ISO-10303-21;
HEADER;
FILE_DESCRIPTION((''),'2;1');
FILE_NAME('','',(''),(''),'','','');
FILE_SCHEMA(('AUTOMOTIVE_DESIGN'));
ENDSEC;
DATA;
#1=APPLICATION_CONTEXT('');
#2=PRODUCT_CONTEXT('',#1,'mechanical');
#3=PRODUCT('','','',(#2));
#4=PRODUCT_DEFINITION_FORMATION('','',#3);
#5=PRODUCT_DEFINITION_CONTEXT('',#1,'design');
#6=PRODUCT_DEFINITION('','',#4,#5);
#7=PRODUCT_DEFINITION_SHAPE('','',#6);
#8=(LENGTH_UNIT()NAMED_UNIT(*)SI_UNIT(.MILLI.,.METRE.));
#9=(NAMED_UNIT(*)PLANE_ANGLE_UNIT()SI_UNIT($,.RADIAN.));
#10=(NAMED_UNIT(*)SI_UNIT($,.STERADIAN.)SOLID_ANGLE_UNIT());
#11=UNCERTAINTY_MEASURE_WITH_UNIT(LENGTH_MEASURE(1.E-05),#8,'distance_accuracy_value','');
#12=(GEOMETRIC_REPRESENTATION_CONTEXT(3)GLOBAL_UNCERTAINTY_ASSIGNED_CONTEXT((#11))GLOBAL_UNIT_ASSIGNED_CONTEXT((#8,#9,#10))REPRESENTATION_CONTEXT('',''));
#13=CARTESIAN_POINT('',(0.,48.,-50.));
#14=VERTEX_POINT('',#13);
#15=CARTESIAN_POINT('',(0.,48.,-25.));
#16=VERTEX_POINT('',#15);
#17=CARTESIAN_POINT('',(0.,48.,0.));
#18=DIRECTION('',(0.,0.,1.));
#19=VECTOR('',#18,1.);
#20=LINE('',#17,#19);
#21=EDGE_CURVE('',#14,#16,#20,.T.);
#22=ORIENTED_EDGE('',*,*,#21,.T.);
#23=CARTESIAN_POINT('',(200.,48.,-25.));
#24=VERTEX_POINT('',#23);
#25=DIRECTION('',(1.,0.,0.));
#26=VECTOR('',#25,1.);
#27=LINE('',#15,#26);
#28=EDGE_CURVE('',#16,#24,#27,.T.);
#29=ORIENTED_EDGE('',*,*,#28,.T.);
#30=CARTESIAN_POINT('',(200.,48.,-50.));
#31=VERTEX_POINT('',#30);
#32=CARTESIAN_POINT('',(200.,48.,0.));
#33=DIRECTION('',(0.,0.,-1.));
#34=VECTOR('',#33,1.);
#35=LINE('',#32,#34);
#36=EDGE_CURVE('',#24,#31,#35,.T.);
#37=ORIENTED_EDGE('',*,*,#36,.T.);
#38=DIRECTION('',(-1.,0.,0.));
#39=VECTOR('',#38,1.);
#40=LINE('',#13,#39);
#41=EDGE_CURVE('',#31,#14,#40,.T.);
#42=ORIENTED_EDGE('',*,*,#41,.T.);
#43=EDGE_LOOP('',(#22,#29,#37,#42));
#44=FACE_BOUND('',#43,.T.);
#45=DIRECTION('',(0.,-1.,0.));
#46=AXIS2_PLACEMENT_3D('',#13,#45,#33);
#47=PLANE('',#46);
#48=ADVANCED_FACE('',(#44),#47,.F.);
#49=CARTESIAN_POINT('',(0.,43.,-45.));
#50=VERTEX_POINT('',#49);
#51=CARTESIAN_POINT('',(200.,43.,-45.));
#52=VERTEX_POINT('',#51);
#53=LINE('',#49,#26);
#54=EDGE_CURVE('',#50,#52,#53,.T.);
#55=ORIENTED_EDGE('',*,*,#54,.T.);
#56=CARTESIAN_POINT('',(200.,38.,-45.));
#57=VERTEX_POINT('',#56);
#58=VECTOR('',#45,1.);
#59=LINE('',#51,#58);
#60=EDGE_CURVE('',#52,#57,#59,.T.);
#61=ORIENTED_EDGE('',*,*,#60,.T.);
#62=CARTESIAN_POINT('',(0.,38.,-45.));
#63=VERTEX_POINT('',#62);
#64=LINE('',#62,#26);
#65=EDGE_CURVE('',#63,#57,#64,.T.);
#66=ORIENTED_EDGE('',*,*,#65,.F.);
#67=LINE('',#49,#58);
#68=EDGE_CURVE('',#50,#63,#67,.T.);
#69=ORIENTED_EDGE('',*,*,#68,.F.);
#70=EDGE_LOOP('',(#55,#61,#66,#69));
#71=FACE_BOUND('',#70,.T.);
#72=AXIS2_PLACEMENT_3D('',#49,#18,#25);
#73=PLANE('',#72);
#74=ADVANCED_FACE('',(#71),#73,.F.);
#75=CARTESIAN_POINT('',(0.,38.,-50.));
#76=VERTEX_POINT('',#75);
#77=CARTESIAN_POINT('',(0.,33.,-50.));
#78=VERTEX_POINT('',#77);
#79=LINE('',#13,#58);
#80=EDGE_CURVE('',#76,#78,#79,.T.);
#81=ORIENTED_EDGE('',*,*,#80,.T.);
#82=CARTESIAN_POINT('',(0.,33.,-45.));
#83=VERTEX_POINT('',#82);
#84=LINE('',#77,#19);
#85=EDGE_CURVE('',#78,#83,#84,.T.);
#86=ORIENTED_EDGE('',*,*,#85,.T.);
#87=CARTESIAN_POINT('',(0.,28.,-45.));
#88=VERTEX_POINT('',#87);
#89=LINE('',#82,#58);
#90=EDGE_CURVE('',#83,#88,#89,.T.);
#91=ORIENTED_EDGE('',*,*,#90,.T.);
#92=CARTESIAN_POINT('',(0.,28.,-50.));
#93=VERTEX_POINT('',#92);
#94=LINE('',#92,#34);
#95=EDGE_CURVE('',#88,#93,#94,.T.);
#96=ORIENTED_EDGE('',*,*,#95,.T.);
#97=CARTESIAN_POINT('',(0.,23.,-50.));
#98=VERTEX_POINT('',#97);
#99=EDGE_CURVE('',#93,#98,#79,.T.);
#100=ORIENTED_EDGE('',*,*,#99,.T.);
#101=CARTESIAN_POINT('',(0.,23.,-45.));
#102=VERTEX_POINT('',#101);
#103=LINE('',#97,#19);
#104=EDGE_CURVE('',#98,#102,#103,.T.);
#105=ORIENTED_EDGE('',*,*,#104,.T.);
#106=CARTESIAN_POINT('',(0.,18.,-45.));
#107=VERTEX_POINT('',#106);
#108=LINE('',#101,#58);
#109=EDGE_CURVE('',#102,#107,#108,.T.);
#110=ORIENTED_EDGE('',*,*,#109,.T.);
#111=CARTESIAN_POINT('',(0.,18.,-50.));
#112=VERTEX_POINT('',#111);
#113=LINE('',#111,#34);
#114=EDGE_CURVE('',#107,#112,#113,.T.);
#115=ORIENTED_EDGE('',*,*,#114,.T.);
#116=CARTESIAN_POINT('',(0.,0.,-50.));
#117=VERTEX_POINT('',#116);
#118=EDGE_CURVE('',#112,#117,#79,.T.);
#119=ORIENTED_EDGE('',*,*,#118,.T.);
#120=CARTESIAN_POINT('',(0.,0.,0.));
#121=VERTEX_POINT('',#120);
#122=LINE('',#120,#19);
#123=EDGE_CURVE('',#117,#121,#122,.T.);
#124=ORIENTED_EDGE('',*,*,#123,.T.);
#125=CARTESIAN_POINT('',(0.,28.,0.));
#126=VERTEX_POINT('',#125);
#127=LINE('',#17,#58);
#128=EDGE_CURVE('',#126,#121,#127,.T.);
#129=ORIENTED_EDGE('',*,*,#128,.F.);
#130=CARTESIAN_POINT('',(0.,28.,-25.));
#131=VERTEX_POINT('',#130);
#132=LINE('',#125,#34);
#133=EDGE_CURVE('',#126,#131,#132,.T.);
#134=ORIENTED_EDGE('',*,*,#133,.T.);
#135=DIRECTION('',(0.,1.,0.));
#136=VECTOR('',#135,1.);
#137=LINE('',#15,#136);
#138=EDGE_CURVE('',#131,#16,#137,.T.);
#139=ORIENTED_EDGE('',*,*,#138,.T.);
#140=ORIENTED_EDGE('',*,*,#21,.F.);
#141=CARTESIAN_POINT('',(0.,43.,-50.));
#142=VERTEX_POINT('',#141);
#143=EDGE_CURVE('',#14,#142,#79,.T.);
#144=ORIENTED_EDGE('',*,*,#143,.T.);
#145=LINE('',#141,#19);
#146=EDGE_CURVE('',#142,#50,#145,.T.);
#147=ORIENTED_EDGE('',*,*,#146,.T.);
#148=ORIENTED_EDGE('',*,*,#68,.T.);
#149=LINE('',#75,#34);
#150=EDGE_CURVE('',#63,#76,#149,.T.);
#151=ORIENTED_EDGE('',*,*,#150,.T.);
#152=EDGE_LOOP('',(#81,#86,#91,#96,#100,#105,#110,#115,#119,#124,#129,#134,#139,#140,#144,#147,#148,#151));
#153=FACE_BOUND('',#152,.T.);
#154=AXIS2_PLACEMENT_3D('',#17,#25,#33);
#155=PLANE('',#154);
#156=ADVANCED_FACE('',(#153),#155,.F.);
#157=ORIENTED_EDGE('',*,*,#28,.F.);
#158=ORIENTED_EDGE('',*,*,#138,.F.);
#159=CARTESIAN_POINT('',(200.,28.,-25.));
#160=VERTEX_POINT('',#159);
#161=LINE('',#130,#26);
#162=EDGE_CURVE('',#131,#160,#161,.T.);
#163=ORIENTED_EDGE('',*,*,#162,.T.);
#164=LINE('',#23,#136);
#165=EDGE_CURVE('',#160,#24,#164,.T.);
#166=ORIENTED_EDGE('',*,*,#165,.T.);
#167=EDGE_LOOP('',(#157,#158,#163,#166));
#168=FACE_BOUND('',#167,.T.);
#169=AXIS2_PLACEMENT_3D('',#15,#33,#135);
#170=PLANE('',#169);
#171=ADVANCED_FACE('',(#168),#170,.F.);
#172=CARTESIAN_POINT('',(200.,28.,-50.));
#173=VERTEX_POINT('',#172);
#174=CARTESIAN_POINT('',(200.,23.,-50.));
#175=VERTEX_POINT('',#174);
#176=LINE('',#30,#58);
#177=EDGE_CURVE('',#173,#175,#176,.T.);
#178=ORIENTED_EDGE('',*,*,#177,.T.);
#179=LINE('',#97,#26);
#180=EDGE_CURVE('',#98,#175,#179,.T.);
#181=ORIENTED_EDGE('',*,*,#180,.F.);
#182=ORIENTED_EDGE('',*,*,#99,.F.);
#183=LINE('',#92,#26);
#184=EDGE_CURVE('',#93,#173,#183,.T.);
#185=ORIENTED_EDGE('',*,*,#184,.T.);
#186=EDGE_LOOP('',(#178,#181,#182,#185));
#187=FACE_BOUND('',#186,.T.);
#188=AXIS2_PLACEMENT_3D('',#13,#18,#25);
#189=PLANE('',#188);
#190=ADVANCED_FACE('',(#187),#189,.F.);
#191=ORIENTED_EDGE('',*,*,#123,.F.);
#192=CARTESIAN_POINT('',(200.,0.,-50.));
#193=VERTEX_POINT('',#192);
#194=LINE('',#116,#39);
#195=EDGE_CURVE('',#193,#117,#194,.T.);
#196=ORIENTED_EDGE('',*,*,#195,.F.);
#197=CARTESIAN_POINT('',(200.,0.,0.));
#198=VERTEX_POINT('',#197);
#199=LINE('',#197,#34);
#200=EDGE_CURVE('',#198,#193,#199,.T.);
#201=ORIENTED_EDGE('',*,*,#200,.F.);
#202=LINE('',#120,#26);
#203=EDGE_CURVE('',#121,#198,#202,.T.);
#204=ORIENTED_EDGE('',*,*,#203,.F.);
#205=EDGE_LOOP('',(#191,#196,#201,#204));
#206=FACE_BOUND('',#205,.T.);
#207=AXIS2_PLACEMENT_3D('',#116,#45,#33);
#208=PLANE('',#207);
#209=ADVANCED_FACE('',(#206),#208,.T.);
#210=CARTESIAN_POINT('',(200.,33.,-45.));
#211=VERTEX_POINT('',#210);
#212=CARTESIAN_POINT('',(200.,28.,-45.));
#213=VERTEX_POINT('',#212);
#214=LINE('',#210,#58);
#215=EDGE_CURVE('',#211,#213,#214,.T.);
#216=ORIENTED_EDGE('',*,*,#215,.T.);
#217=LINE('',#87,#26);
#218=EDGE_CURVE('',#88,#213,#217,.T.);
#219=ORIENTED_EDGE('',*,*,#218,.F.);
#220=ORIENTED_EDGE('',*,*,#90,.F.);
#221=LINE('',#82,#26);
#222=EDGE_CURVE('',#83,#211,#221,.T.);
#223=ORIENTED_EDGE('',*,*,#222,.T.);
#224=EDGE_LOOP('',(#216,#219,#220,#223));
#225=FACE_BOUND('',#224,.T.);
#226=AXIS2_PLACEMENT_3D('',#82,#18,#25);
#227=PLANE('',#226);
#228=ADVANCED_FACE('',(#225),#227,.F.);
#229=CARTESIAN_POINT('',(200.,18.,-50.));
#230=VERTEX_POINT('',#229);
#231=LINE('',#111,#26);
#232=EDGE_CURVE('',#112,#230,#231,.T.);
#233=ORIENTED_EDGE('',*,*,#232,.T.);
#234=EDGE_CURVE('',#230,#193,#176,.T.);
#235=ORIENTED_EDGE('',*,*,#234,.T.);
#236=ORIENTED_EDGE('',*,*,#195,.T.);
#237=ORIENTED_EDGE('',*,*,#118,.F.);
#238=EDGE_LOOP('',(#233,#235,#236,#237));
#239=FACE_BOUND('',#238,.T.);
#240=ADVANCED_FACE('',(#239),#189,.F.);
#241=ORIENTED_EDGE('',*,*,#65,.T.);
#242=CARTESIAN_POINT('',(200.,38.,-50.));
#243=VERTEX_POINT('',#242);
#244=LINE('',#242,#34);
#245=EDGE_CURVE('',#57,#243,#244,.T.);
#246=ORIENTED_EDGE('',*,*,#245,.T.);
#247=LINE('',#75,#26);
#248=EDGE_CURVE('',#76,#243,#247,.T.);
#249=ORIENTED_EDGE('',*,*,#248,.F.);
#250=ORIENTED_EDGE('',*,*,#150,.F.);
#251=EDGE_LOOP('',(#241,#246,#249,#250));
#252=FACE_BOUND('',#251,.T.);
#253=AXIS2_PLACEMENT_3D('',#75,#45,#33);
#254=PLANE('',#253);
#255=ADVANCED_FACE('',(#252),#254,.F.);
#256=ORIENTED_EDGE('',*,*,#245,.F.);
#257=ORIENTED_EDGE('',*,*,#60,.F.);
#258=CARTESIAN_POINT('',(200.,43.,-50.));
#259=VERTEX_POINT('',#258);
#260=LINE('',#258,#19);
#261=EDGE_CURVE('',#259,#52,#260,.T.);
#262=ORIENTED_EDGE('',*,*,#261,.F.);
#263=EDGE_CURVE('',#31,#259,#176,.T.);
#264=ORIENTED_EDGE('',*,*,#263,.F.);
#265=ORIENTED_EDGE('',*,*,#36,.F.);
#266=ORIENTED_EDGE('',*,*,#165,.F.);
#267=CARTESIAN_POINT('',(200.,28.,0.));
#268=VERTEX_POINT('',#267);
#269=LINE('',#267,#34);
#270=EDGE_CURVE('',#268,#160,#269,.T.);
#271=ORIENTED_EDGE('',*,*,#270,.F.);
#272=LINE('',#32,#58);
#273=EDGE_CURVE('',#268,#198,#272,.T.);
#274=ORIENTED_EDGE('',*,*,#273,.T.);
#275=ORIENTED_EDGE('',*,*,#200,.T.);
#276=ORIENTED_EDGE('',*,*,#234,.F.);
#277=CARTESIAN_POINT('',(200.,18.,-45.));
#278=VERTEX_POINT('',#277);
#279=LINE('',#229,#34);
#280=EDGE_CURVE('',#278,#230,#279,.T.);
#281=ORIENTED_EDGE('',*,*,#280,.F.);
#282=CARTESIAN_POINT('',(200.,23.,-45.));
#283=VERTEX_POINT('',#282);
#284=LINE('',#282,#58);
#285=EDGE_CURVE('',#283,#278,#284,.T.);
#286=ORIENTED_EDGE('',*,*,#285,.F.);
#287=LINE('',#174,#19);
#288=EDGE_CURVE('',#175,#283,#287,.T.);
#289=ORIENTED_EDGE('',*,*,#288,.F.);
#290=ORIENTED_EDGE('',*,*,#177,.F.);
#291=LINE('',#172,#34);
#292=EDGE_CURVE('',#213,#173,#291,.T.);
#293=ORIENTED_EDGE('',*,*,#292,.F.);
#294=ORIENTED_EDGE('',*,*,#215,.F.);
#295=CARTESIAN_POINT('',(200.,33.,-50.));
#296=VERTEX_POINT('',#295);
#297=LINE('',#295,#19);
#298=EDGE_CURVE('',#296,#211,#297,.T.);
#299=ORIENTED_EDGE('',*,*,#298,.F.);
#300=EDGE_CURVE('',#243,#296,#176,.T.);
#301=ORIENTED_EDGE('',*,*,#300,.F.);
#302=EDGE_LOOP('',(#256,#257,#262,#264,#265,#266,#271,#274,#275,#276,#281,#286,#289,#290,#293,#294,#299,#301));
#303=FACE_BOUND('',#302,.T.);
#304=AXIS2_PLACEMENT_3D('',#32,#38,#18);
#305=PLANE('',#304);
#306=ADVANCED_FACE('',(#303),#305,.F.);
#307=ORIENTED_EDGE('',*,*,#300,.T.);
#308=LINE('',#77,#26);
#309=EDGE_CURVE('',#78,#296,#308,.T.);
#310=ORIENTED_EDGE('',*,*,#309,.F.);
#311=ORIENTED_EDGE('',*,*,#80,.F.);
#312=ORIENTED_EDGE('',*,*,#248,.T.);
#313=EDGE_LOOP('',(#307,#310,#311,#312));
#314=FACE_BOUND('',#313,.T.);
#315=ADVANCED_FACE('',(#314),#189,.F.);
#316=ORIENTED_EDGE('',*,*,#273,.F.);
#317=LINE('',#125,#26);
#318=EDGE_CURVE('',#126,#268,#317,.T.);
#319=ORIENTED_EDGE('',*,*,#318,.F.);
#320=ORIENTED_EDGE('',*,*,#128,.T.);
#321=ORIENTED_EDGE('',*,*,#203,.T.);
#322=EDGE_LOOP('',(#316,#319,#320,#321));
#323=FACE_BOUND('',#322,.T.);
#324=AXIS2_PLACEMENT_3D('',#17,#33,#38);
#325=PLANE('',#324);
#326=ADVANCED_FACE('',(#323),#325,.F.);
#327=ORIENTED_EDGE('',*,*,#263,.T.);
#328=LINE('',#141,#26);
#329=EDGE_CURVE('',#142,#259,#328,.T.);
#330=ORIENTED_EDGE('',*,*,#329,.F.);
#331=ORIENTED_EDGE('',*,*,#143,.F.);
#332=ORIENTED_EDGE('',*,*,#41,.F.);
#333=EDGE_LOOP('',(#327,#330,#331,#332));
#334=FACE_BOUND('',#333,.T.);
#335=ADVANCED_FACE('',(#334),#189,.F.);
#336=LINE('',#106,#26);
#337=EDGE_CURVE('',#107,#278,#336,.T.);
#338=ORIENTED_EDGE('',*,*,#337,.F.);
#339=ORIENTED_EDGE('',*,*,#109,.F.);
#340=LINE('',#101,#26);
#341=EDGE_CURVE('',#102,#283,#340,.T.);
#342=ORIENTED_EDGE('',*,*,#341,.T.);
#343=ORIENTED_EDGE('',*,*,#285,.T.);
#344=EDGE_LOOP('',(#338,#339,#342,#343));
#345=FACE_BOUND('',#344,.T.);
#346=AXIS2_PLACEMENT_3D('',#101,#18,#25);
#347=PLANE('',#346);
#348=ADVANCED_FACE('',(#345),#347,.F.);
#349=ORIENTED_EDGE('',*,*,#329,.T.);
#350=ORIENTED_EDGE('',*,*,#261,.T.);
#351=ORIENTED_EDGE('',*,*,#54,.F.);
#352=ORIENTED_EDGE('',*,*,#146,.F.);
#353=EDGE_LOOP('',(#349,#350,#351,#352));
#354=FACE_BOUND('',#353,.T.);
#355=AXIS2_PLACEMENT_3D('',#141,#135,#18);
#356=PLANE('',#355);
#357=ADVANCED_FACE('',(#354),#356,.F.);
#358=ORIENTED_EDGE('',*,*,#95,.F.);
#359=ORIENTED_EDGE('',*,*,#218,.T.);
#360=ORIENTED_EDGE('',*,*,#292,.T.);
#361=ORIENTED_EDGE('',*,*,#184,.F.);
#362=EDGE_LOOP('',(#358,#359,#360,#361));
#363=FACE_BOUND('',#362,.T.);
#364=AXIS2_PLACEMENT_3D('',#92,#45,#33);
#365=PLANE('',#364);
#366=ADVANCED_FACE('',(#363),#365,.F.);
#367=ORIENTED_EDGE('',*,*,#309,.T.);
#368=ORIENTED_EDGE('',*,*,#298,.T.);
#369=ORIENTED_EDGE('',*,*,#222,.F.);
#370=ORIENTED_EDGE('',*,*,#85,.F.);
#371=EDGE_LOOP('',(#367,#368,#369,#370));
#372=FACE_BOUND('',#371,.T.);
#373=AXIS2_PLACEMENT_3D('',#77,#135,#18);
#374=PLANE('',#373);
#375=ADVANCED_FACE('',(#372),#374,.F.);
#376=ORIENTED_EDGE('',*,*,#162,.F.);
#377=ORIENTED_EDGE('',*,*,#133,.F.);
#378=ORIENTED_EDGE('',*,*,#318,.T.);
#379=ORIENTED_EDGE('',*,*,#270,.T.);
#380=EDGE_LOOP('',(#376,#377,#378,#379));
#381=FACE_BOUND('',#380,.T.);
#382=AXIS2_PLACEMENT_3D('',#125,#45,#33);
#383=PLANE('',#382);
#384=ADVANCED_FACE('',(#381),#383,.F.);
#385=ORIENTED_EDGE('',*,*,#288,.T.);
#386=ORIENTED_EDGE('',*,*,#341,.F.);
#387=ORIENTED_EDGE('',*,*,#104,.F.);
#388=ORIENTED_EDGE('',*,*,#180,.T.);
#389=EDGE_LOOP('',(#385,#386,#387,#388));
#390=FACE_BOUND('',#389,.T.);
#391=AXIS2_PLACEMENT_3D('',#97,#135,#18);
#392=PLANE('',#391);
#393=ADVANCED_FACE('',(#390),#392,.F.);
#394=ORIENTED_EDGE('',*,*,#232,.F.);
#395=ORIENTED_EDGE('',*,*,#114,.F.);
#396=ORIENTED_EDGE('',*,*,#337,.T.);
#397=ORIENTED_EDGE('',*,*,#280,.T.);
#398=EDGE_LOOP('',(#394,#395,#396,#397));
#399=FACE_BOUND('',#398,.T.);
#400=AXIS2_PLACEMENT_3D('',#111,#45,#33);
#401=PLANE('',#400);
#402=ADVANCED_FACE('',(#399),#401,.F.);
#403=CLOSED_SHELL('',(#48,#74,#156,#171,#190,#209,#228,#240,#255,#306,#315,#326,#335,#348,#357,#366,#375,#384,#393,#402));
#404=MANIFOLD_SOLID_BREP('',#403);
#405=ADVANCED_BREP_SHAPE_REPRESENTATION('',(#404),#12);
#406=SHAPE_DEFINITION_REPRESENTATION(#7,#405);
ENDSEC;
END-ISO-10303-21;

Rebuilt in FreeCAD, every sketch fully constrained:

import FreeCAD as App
import Part
import Sketcher

V = App.Vector
Q = App.Units.Quantity

doc = App.newDocument("Part")
body = doc.addObject("PartDesign::Body", "Body")

# Sketch on XZ plane
sketch1 = body.newObject("Sketcher::SketchObject", "Sketch")
sketch1.AttachmentSupport = (doc.getObject("XZ_Plane"), [""])
sketch1.MapMode = "FlatFace"
sketch1.addGeometry([
    Part.LineSegment(V(0, -50, 0), V(0, 0, 0)),
    Part.LineSegment(V(0, 0, 0), V(200, 0, 0)),
    Part.LineSegment(V(200, 0, 0), V(200, -50, 0)),
    Part.LineSegment(V(200, -50, 0), V(0, -50, 0)),
], False)
sketch1.addConstraint([
    Sketcher.Constraint("Coincident", 0, 2, 1, 1),
    Sketcher.Constraint("Coincident", 1, 2, 2, 1),
    Sketcher.Constraint("Coincident", 2, 2, 3, 1),
    Sketcher.Constraint("Coincident", 3, 2, 0, 1),
    Sketcher.Constraint("Vertical", 0),
    Sketcher.Constraint("Horizontal", 1),
    Sketcher.Constraint("Vertical", 2),
    Sketcher.Constraint("Horizontal", 3),
    Sketcher.Constraint("Coincident", 0, 2, -1, 1),
    Sketcher.Constraint("DistanceX", 1, 1, 1, 2, Q("200 mm")),
    Sketcher.Constraint("DistanceY", 0, 1, 0, 2, Q("50 mm")),
])
pad1 = body.newObject("PartDesign::Pad", "Pad")
pad1.Profile = sketch1
pad1.Length = 48
pad1.Reversed = True

# Sketch on YZ plane
sketch2 = body.newObject("Sketcher::SketchObject", "Sketch001")
sketch2.AttachmentSupport = (doc.getObject("YZ_Plane"), [""])
sketch2.MapMode = "FlatFace"
sketch2.AttachmentOffset = App.Placement(V(0, 0, 200), App.Rotation())
sketch2.addGeometry([
    Part.LineSegment(V(48, 0, 0), V(28, 0, 0)),  # 0
    Part.LineSegment(V(28, 0, 0), V(28, -25, 0)),  # 1
    Part.LineSegment(V(28, -25, 0), V(48, -25, 0)),  # 2
    Part.LineSegment(V(48, -25, 0), V(48, 0, 0)),  # 3
    Part.LineSegment(V(43, -45, 0), V(38, -45, 0)),  # 4
    Part.LineSegment(V(38, -45, 0), V(38, -50, 0)),  # 5
    Part.LineSegment(V(38, -50, 0), V(43, -50, 0)),  # 6
    Part.LineSegment(V(43, -50, 0), V(43, -45, 0)),  # 7
    Part.LineSegment(V(33, -45, 0), V(28, -45, 0)),  # 8
    Part.LineSegment(V(28, -45, 0), V(28, -50, 0)),  # 9
    Part.LineSegment(V(28, -50, 0), V(33, -50, 0)),  # 10
    Part.LineSegment(V(33, -50, 0), V(33, -45, 0)),  # 11
    Part.LineSegment(V(23, -45, 0), V(18, -45, 0)),  # 12
    Part.LineSegment(V(18, -45, 0), V(18, -50, 0)),  # 13
    Part.LineSegment(V(18, -50, 0), V(23, -50, 0)),  # 14
    Part.LineSegment(V(23, -50, 0), V(23, -45, 0)),  # 15
], False)
sketch2.addConstraint([
    Sketcher.Constraint("Coincident", 0, 2, 1, 1),
    Sketcher.Constraint("Coincident", 1, 2, 2, 1),
    Sketcher.Constraint("Coincident", 2, 2, 3, 1),
    Sketcher.Constraint("Coincident", 3, 2, 0, 1),
    Sketcher.Constraint("Coincident", 4, 2, 5, 1),
    Sketcher.Constraint("Coincident", 5, 2, 6, 1),
    Sketcher.Constraint("Coincident", 6, 2, 7, 1),
    Sketcher.Constraint("Coincident", 7, 2, 4, 1),
    Sketcher.Constraint("Coincident", 8, 2, 9, 1),
    Sketcher.Constraint("Coincident", 9, 2, 10, 1),
    Sketcher.Constraint("Coincident", 10, 2, 11, 1),
    Sketcher.Constraint("Coincident", 11, 2, 8, 1),
    Sketcher.Constraint("Coincident", 12, 2, 13, 1),
    Sketcher.Constraint("Coincident", 13, 2, 14, 1),
    Sketcher.Constraint("Coincident", 14, 2, 15, 1),
    Sketcher.Constraint("Coincident", 15, 2, 12, 1),
    Sketcher.Constraint("Horizontal", 0),
    Sketcher.Constraint("Vertical", 1),
    Sketcher.Constraint("Horizontal", 2),
    Sketcher.Constraint("Vertical", 3),
    Sketcher.Constraint("Horizontal", 4),
    Sketcher.Constraint("Vertical", 5),
    Sketcher.Constraint("Horizontal", 6),
    Sketcher.Constraint("Vertical", 7),
    Sketcher.Constraint("Horizontal", 8),
    Sketcher.Constraint("Vertical", 9),
    Sketcher.Constraint("Horizontal", 10),
    Sketcher.Constraint("Vertical", 11),
    Sketcher.Constraint("Horizontal", 12),
    Sketcher.Constraint("Vertical", 13),
    Sketcher.Constraint("Horizontal", 14),
    Sketcher.Constraint("Vertical", 15),
    Sketcher.Constraint("PointOnObject", 0, 2, -1),
    Sketcher.Constraint("Horizontal", 7, 2, 8, 2),
    Sketcher.Constraint("Horizontal", 6, 2, 9, 2),
    Sketcher.Constraint("Horizontal", 11, 2, 12, 2),
    Sketcher.Constraint("Horizontal", 10, 2, 13, 2),
    Sketcher.Constraint("Vertical", 1, 2, 8, 2),
    Sketcher.Constraint("Equal", 6, 8),
    Sketcher.Constraint("Equal", 10, 12),
    Sketcher.Constraint("Equal", 14, 5),
    Sketcher.Constraint("DistanceX", 0, 2, 0, 1, Q("20 mm")),
    Sketcher.Constraint("DistanceX", 4, 2, 4, 1, Q("5 mm")),
    Sketcher.Constraint("DistanceY", 1, 2, 1, 1, Q("25 mm")),
    Sketcher.Constraint("DistanceX", -1, 1, 0, 2, Q("28 mm")),
    Sketcher.Constraint("DistanceX", -1, 1, 4, 2, Q("38 mm")),
    Sketcher.Constraint("DistanceY", 4, 2, -1, 1, Q("45 mm")),
    Sketcher.Constraint("DistanceX", -1, 1, 12, 2, Q("18 mm")),
])
pocket1 = body.newObject("PartDesign::Pocket", "Pocket")
pocket1.Profile = sketch2
pocket1.Type = "ThroughAll"

doc.recompute()
